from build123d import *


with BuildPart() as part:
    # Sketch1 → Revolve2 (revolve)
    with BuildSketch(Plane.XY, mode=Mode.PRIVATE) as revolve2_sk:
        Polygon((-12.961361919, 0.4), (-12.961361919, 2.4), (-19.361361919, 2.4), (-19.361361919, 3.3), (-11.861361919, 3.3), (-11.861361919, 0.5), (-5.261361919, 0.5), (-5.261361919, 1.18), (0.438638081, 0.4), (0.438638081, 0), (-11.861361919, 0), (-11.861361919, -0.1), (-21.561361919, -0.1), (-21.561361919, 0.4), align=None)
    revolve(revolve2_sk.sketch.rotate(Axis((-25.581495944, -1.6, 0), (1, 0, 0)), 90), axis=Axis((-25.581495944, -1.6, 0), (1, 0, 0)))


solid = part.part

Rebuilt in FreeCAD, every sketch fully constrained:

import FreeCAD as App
import Part
import Sketcher

V = App.Vector


def add_polygon(sketch, points):
    """Adds a closed chain of lines whose ends are joined by coincident constraints."""
    first, n = sketch.GeometryCount, len(points)
    for a, b in zip(points, points[1:] + points[:1]):
        sketch.addGeometry(Part.LineSegment(App.Vector(*a, 0), App.Vector(*b, 0)), False)
    for i in range(n):
        sketch.addConstraint(Sketcher.Constraint("Coincident", first + i, 2, first + (i + 1) % n, 1))

doc = App.newDocument("Part")
body = doc.addObject("PartDesign::Body", "Body")

sketch1 = doc.addObject("Sketcher::SketchObject", "Sketch")
body.addObject(sketch1)
sketch1.AttachmentSupport = (doc.XY_Plane, [""])
sketch1.MapMode = "FlatFace"
add_polygon(sketch1, [(-12.96, 2.4), (-12.96, 0.4), (-21.56, 0.4), (-21.56, -0.1), (-11.86, -0.1), (-11.86, 0), (0.44, 0), (0.44, 0.4), (-5.26, 1.18), (-5.26, 0.5), (-11.86, 0.5), (-11.86, 3.3), (-19.36, 3.3), (-19.36, 2.4)])
sketch1.addGeometry(Part.LineSegment(V(-21.56, -1.6, 0), V(0.44, -1.6, 0)), True)
sketch1.addConstraint([
    Sketcher.Constraint("Vertical", 0),
    Sketcher.Constraint("Horizontal", 1),
    Sketcher.Constraint("Vertical", 2),
    Sketcher.Constraint("Horizontal", 3),
    Sketcher.Constraint("Vertical", 4),
    Sketcher.Constraint("Horizontal", 5),
    Sketcher.Constraint("Vertical", 6),
    Sketcher.Constraint("Vertical", 8),
    Sketcher.Constraint("Horizontal", 9),
    Sketcher.Constraint("Vertical", 10),
    Sketcher.Constraint("Horizontal", 11),
    Sketcher.Constraint("Vertical", 12),
    Sketcher.Constraint("Horizontal", 13),
    Sketcher.Constraint("Horizontal", 14),
    Sketcher.Constraint("PointOnObject", 4, 2, -1),
    Sketcher.Constraint("Horizontal", 1, 2, 6, 2),
    Sketcher.Constraint("Vertical", 4, 2, 9, 2),
    Sketcher.Constraint("Vertical", 2, 2, 14, 1),
    Sketcher.Constraint("Vertical", 6, 2, 14, 2),
    Sketcher.Constraint("DistanceX", 14, 1, 14, 2, 22.0),
    Sketcher.Constraint("DistanceY", 0, 2, 0, 1, 2.0),
    Sketcher.Constraint("DistanceX", 1, 2, 1, 1, 8.6),
    Sketcher.Constraint("DistanceX", 3, 1, 3, 2, 9.7),
    Sketcher.Constraint("DistanceX", 9, 2, 9, 1, 6.6),
    Sketcher.Constraint("DistanceX", 11, 2, 11, 1, 7.5),
    Sketcher.Constraint("DistanceY", 2, 2, 2, 1, 0.5),
    Sketcher.Constraint("DistanceY", 4, 1, 4, 2, 0.1),
    Sketcher.Constraint("DistanceY", 10, 1, 10, 2, 2.8),
    Sketcher.Constraint("DistanceY", 12, 2, 12, 1, 0.9),
    Sketcher.Constraint("DistanceY", 14, 1, 1, 2, 2.0),
    Sketcher.Constraint("DistanceY", 8, 2, 8, 1, 0.68),
    Sketcher.Constraint("DistanceX", 0, 2, -1, 1, 12.961362),
])
revolution = doc.addObject("PartDesign::Revolution", "Revolution")
body.addObject(revolution)
revolution.Profile = sketch1
revolution.ReferenceAxis = (sketch1, ["Axis0"])
revolution.Angle = 360

doc.recompute()
